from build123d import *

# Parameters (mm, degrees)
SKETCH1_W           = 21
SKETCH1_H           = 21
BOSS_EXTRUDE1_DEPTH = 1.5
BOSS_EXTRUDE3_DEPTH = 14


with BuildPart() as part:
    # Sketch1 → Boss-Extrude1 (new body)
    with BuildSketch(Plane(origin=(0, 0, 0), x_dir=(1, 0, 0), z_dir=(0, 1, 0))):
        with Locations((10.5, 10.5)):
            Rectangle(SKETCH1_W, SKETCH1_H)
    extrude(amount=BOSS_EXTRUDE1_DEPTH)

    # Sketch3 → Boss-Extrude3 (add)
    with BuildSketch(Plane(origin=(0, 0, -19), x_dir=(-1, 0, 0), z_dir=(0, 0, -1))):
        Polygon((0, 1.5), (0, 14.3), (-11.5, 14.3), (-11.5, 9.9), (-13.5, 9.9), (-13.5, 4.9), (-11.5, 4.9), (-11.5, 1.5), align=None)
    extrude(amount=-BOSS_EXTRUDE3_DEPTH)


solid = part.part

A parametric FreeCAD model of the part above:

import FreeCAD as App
import Part
import Sketcher
from FreeCAD import Vector
Q = App.Units.Quantity


def add_polygon(sketch, points):
    """Adds a closed chain of lines whose ends are joined by coincident constraints."""
    first, n = sketch.GeometryCount, len(points)
    for a, b in zip(points, points[1:] + points[:1]):
        sketch.addGeometry(Part.LineSegment(App.Vector(*a, 0), App.Vector(*b, 0)), False)
    for i in range(n):
        sketch.addConstraint(Sketcher.Constraint("Coincident", first + i, 2, first + (i + 1) % n, 1))

doc = App.newDocument("Part")
body = doc.addObject("PartDesign::Body", "Body")

sketch1 = body.newObject("Sketcher::SketchObject", "Sketch")
sketch1.AttachmentSupport = (doc.getObject("XZ_Plane"), [""])
sketch1.MapMode = "FlatFace"
add_polygon(sketch1, [(0, -21), (0, 0), (21, 0), (21, -21)])
sketch1.addConstraint(Sketcher.Constraint("Vertical", 0))
sketch1.addConstraint(Sketcher.Constraint("Horizontal", 1))
sketch1.addConstraint(Sketcher.Constraint("Vertical", 2))
sketch1.addConstraint(Sketcher.Constraint("Horizontal", 3))
sketch1.addConstraint(Sketcher.Constraint("Coincident", 0, 2, -1, 1))
sketch1.addConstraint(Sketcher.Constraint("Equal", 3, 0))
sketch1.addConstraint(Sketcher.Constraint("DistanceX", 1, 1, 1, 2, Q("21 mm")))
pad1 = body.newObject("PartDesign::Pad", "Pad")
pad1.Profile = sketch1
pad1.Length = 1.5
pad1.Reversed = True

sketch2 = body.newObject("Sketcher::SketchObject", "Sketch001")
sketch2.AttachmentSupport = (doc.getObject("XY_Plane"), [""])
sketch2.MapMode = "FlatFace"
sketch2.AttachmentOffset = App.Placement(Vector(0, 0, -19), App.Rotation())
add_polygon(sketch2, [(0, 1.5), (0, 14.3), (11.5, 14.3), (11.5, 9.9), (13.5, 9.9), (13.5, 4.9), (11.5, 4.9), (11.5, 1.5)])
sketch2.addConstraint(Sketcher.Constraint("Vertical", 0))
sketch2.addConstraint(Sketcher.Constraint("Horizontal", 1))
sketch2.addConstraint(Sketcher.Constraint("Vertical", 2))
sketch2.addConstraint(Sketcher.Constraint("Horizontal", 3))
sketch2.addConstraint(Sketcher.Constraint("Vertical", 4))
sketch2.addConstraint(Sketcher.Constraint("Horizontal", 5))
sketch2.addConstraint(Sketcher.Constraint("Vertical", 6))
sketch2.addConstraint(Sketcher.Constraint("Horizontal", 7))
sketch2.addConstraint(Sketcher.Constraint("PointOnObject", 0, 2, -2))
sketch2.addConstraint(Sketcher.Constraint("Vertical", 2, 2, 5, 2))
sketch2.addConstraint(Sketcher.Constraint("DistanceX", 3, 1, 3, 2, Q("2 mm")))
sketch2.addConstraint(Sketcher.Constraint("DistanceY", 4, 2, 4, 1, Q("5 mm")))
sketch2.addConstraint(Sketcher.Constraint("DistanceX", 1, 1, 1, 2, Q("11.5 mm")))
sketch2.addConstraint(Sketcher.Constraint("DistanceY", 0, 1, 0, 2, Q("12.8 mm")))
sketch2.addConstraint(Sketcher.Constraint("DistanceY", 2, 2, 2, 1, Q("4.4 mm")))
sketch2.addConstraint(Sketcher.Constraint("DistanceY", -1, 1, 0, 2, Q("14.3 mm")))
pad2 = body.newObject("PartDesign::Pad", "Pad001")
pad2.Profile = sketch2
pad2.Length = 14

doc.recompute()
